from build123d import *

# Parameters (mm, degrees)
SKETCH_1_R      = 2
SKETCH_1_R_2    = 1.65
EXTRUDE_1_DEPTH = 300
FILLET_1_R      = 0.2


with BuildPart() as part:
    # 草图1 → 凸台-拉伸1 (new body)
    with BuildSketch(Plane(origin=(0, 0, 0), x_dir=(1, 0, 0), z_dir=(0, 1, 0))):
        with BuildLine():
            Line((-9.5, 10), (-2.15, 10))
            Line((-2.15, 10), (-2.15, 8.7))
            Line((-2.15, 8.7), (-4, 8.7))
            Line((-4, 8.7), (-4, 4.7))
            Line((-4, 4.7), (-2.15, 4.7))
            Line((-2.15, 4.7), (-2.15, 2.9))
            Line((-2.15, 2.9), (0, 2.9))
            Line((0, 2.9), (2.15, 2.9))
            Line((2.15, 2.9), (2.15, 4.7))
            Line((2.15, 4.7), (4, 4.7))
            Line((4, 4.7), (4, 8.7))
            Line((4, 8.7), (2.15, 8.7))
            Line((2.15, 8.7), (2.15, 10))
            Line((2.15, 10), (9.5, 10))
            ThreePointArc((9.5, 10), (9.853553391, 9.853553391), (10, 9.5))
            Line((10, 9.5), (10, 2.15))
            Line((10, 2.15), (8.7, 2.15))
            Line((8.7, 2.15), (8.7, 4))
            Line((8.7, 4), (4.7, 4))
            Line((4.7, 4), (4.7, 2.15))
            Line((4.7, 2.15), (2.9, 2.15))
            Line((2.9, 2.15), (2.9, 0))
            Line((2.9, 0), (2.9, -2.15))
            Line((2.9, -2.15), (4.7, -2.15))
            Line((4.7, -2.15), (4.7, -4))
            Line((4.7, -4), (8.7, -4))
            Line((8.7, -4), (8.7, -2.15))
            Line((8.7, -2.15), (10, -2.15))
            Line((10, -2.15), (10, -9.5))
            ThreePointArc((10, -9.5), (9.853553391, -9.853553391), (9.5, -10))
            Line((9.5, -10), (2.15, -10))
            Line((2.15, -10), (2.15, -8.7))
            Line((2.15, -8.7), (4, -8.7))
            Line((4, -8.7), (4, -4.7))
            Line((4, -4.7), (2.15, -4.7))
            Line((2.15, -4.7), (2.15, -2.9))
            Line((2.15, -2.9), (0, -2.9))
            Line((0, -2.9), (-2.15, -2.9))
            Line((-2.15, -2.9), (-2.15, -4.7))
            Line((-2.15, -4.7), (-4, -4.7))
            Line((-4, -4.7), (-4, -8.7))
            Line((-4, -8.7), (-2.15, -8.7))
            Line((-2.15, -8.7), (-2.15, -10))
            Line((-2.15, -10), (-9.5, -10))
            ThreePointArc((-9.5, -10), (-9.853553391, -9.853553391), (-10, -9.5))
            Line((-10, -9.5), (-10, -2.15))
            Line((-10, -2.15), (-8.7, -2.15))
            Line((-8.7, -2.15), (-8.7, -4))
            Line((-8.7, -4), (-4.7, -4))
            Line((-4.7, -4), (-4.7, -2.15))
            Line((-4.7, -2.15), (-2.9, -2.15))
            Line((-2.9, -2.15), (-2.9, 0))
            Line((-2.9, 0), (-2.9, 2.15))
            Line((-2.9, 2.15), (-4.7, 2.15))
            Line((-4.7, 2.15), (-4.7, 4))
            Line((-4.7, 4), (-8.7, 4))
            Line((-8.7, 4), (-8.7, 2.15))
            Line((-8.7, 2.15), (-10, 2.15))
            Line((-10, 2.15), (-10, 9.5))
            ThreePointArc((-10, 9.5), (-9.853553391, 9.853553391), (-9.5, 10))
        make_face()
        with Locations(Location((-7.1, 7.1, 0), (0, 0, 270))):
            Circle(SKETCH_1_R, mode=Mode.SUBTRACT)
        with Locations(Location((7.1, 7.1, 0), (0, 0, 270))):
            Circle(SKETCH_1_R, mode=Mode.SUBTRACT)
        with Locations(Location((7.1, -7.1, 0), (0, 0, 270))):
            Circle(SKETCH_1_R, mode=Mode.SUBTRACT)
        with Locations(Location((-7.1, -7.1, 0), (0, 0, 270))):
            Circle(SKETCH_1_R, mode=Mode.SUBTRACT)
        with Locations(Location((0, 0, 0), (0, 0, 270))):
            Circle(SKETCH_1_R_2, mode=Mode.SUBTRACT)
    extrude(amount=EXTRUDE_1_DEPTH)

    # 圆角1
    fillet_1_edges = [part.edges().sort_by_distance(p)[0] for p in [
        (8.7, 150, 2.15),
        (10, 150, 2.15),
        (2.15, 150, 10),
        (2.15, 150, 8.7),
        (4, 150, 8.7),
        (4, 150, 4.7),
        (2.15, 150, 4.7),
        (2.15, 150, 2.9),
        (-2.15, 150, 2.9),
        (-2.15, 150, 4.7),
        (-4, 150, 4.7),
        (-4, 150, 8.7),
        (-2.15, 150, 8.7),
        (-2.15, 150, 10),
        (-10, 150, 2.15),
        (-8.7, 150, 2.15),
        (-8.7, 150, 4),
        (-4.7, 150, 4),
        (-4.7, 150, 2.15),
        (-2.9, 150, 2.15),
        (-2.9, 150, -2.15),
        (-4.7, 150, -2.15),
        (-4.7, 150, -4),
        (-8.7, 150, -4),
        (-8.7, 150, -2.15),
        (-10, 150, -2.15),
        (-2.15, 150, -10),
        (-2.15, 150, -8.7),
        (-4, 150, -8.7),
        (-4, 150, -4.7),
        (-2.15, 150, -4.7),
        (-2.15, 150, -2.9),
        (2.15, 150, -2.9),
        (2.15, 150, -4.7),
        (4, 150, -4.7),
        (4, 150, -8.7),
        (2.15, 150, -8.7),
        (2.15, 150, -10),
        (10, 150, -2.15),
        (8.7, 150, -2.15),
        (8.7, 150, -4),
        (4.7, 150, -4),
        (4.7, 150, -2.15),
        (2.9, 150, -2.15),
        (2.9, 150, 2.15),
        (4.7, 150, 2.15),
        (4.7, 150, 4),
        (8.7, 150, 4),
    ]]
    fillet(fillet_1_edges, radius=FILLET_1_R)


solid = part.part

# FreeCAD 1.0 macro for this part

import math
import FreeCAD as App
import Part
import Sketcher
from FreeCAD import Vector


def edges_at(feature, points):
    """Names of the edges that pass closest to the given points."""
    edges = feature.Shape.Edges
    near = lambda p: min(range(len(edges)), key=lambda i: edges[i].distToShape(Part.Vertex(*p))[0])
    return sorted({f"Edge{near(p) + 1}" for p in points})

doc = App.newDocument("Part")
params = doc.addObject("Spreadsheet::Sheet", "Params")
for row, (alias, value) in enumerate([
    ("sketch1_diameter", "4 mm"),
    ("sketch1_diameter2", "3.3 mm"),
    ("sketch1_radius", "0.5 mm"),
    ("sketch1_width", "4 mm"),
    ("sketch1_width2", "1.3 mm"),
    ("pad1_length", "300 mm"),
    ("fillet_radius", "0.2 mm"),
], start=1):
    params.set(f"A{row}", alias)
    params.set(f"B{row}", "=" + value)
    params.setAlias(f"B{row}", alias)

body = doc.addObject("PartDesign::Body", "Body")

# Sketch on XZ plane
sketch1 = doc.addObject("Sketcher::SketchObject", "Sketch")
body.addObject(sketch1)
sketch1.AttachmentSupport = (doc.XZ_Plane, [""])
sketch1.MapMode = "FlatFace"
sketch1.addGeometry([
    Part.LineSegment(Vector(-2.15, -10, 0), Vector(-9.5, -10, 0)),  # 0
    Part.ArcOfCircle(Part.Circle(Vector(-9.5, -9.5, 0), Vector(0, 0, 1), 0.5), math.radians(180), math.radians(270)),  # 1
    Part.LineSegment(Vector(-10, -9.5, 0), Vector(-10, -2.15, 0)),  # 2
    Part.LineSegment(Vector(-10, -2.15, 0), Vector(-8.7, -2.15, 0)),  # 3
    Part.LineSegment(Vector(-8.7, -2.15, 0), Vector(-8.7, -4, 0)),  # 4
    Part.LineSegment(Vector(-8.7, -4, 0), Vector(-4.7, -4, 0)),  # 5
    Part.LineSegment(Vector(-4.7, -4, 0), Vector(-4.7, -2.15, 0)),  # 6
    Part.LineSegment(Vector(-4.7, -2.15, 0), Vector(-2.9, -2.15, 0)),  # 7
    Part.LineSegment(Vector(-2.9, -2.15, 0), Vector(-2.9, 2.15, 0)),  # 8
    Part.LineSegment(Vector(-2.9, 2.15, 0), Vector(-4.7, 2.15, 0)),  # 9
    Part.LineSegment(Vector(-4.7, 2.15, 0), Vector(-4.7, 4, 0)),  # 10
    Part.LineSegment(Vector(-4.7, 4, 0), Vector(-8.7, 4, 0)),  # 11
    Part.LineSegment(Vector(-8.7, 4, 0), Vector(-8.7, 2.15, 0)),  # 12
    Part.LineSegment(Vector(-8.7, 2.15, 0), Vector(-10, 2.15, 0)),  # 13
    Part.LineSegment(Vector(-10, 2.15, 0), Vector(-10, 9.5, 0)),  # 14
    Part.ArcOfCircle(Part.Circle(Vector(-9.5, 9.5, 0), Vector(0, 0, 1), 0.5), math.radians(90), math.radians(180)),  # 15
    Part.LineSegment(Vector(-9.5, 10, 0), Vector(-2.15, 10, 0)),  # 16
    Part.LineSegment(Vector(-2.15, 10, 0), Vector(-2.15, 8.7, 0)),  # 17
    Part.LineSegment(Vector(-2.15, 8.7, 0), Vector(-4, 8.7, 0)),  # 18
    Part.LineSegment(Vector(-4, 8.7, 0), Vector(-4, 4.7, 0)),  # 19
    Part.LineSegment(Vector(-4, 4.7, 0), Vector(-2.15, 4.7, 0)),  # 20
    Part.LineSegment(Vector(-2.15, 4.7, 0), Vector(-2.15, 2.9, 0)),  # 21
    Part.LineSegment(Vector(-2.15, 2.9, 0), Vector(2.15, 2.9, 0)),  # 22
    Part.LineSegment(Vector(2.15, 2.9, 0), Vector(2.15, 4.7, 0)),  # 23
    Part.LineSegment(Vector(2.15, 4.7, 0), Vector(4, 4.7, 0)),  # 24
    Part.LineSegment(Vector(4, 4.7, 0), Vector(4, 8.7, 0)),  # 25
    Part.LineSegment(Vector(4, 8.7, 0), Vector(2.15, 8.7, 0)),  # 26
    Part.LineSegment(Vector(2.15, 8.7, 0), Vector(2.15, 10, 0)),  # 27
    Part.LineSegment(Vector(2.15, 10, 0), Vector(9.5, 10, 0)),  # 28
    Part.ArcOfCircle(Part.Circle(Vector(9.5, 9.5, 0), Vector(0, 0, 1), 0.5), math.radians(0), math.radians(90)),  # 29
    Part.LineSegment(Vector(10, 9.5, 0), Vector(10, 2.15, 0)),  # 30
    Part.LineSegment(Vector(10, 2.15, 0), Vector(8.7, 2.15, 0)),  # 31
    Part.LineSegment(Vector(8.7, 2.15, 0), Vector(8.7, 4, 0)),  # 32
    Part.LineSegment(Vector(8.7, 4, 0), Vector(4.7, 4, 0)),  # 33
    Part.LineSegment(Vector(4.7, 4, 0), Vector(4.7, 2.15, 0)),  # 34
    Part.LineSegment(Vector(4.7, 2.15, 0), Vector(2.9, 2.15, 0)),  # 35
    Part.LineSegment(Vector(2.9, 2.15, 0), Vector(2.9, -2.15, 0)),  # 36
    Part.LineSegment(Vector(2.9, -2.15, 0), Vector(4.7, -2.15, 0)),  # 37
    Part.LineSegment(Vector(4.7, -2.15, 0), Vector(4.7, -4, 0)),  # 38
    Part.LineSegment(Vector(4.7, -4, 0), Vector(8.7, -4, 0)),  # 39
    Part.LineSegment(Vector(8.7, -4, 0), Vector(8.7, -2.15, 0)),  # 40
    Part.LineSegment(Vector(8.7, -2.15, 0), Vector(10, -2.15, 0)),  # 41
    Part.LineSegment(Vector(10, -2.15, 0), Vector(10, -9.5, 0)),  # 42
    Part.ArcOfCircle(Part.Circle(Vector(9.5, -9.5, 0), Vector(0, 0, 1), 0.5), math.radians(-90), math.radians(0)),  # 43
    Part.LineSegment(Vector(9.5, -10, 0), Vector(2.15, -10, 0)),  # 44
    Part.LineSegment(Vector(2.15, -10, 0), Vector(2.15, -8.7, 0)),  # 45
    Part.LineSegment(Vector(2.15, -8.7, 0), Vector(4, -8.7, 0)),  # 46
    Part.LineSegment(Vector(4, -8.7, 0), Vector(4, -4.7, 0)),  # 47
    Part.LineSegment(Vector(4, -4.7, 0), Vector(2.15, -4.7, 0)),  # 48
    Part.LineSegment(Vector(2.15, -4.7, 0), Vector(2.15, -2.9, 0)),  # 49
    Part.LineSegment(Vector(2.15, -2.9, 0), Vector(-2.15, -2.9, 0)),  # 50
    Part.LineSegment(Vector(-2.15, -2.9, 0), Vector(-2.15, -4.7, 0)),  # 51
    Part.LineSegment(Vector(-2.15, -4.7, 0), Vector(-4, -4.7, 0)),  # 52
    Part.LineSegment(Vector(-4, -4.7, 0), Vector(-4, -8.7, 0)),  # 53
    Part.LineSegment(Vector(-4, -8.7, 0), Vector(-2.15, -8.7, 0)),  # 54
    Part.LineSegment(Vector(-2.15, -8.7, 0), Vector(-2.15, -10, 0)),  # 55
    Part.Circle(Vector(7.1, 7.1, 0), Vector(0, 0, 1), 2),  # 56
    Part.Circle(Vector(0, 0, 0), Vector(0, 0, 1), 1.65),  # 57
    Part.Circle(Vector(-7.1, 7.1, 0), Vector(0, 0, 1), 2),  # 58
    Part.Circle(Vector(7.1, -7.1, 0), Vector(0, 0, 1), 2),  # 59
    Part.Circle(Vector(-7.1, -7.1, 0), Vector(0, 0, 1), 2),  # 60
], False)
sketch1.addConstraint([
    Sketcher.Constraint("Tangent", 0, 2, 1, 2),
    Sketcher.Constraint("Tangent", 1, 1, 2, 1),
    Sketcher.Constraint("Coincident", 2, 2, 3, 1),
    Sketcher.Constraint("Coincident", 3, 2, 4, 1),
    Sketcher.Constraint("Coincident", 4, 2, 5, 1),
    Sketcher.Constraint("Coincident", 5, 2, 6, 1),
    Sketcher.Constraint("Coincident", 6, 2, 7, 1),
    Sketcher.Constraint("Coincident", 7, 2, 8, 1),
    Sketcher.Constraint("Coincident", 8, 2, 9, 1),
    Sketcher.Constraint("Coincident", 9, 2, 10, 1),
    Sketcher.Constraint("Coincident", 10, 2, 11, 1),
    Sketcher.Constraint("Coincident", 11, 2, 12, 1),
    Sketcher.Constraint("Coincident", 12, 2, 13, 1),
    Sketcher.Constraint("Coincident", 13, 2, 14, 1),
    Sketcher.Constraint("Tangent", 14, 2, 15, 2),
    Sketcher.Constraint("Tangent", 15, 1, 16, 1),
    Sketcher.Constraint("Coincident", 16, 2, 17, 1),
    Sketcher.Constraint("Coincident", 17, 2, 18, 1),
    Sketcher.Constraint("Coincident", 18, 2, 19, 1),
    Sketcher.Constraint("Coincident", 19, 2, 20, 1),
    Sketcher.Constraint("Coincident", 20, 2, 21, 1),
    Sketcher.Constraint("Coincident", 21, 2, 22, 1),
    Sketcher.Constraint("Coincident", 22, 2, 23, 1),
    Sketcher.Constraint("Coincident", 23, 2, 24, 1),
    Sketcher.Constraint("Coincident", 24, 2, 25, 1),
    Sketcher.Constraint("Coincident", 25, 2, 26, 1),
    Sketcher.Constraint("Coincident", 26, 2, 27, 1),
    Sketcher.Constraint("Coincident", 27, 2, 28, 1),
    Sketcher.Constraint("Tangent", 28, 2, 29, 2),
    Sketcher.Constraint("Tangent", 29, 1, 30, 1),
    Sketcher.Constraint("Coincident", 30, 2, 31, 1),
    Sketcher.Constraint("Coincident", 31, 2, 32, 1),
    Sketcher.Constraint("Coincident", 32, 2, 33, 1),
    Sketcher.Constraint("Coincident", 33, 2, 34, 1),
    Sketcher.Constraint("Coincident", 34, 2, 35, 1),
    Sketcher.Constraint("Coincident", 35, 2, 36, 1),
    Sketcher.Constraint("Coincident", 36, 2, 37, 1),
    Sketcher.Constraint("Coincident", 37, 2, 38, 1),
    Sketcher.Constraint("Coincident", 38, 2, 39, 1),
    Sketcher.Constraint("Coincident", 39, 2, 40, 1),
    Sketcher.Constraint("Coincident", 40, 2, 41, 1),
    Sketcher.Constraint("Coincident", 41, 2, 42, 1),
    Sketcher.Constraint("Tangent", 42, 2, 43, 2),
    Sketcher.Constraint("Tangent", 43, 1, 44, 1),
    Sketcher.Constraint("Coincident", 44, 2, 45, 1),
    Sketcher.Constraint("Coincident", 45, 2, 46, 1),
    Sketcher.Constraint("Coincident", 46, 2, 47, 1),
    Sketcher.Constraint("Coincident", 47, 2, 48, 1),
    Sketcher.Constraint("Coincident", 48, 2, 49, 1),
    Sketcher.Constraint("Coincident", 49, 2, 50, 1),
    Sketcher.Constraint("Coincident", 50, 2, 51, 1),
    Sketcher.Constraint("Coincident", 51, 2, 52, 1),
    Sketcher.Constraint("Coincident", 52, 2, 53, 1),
    Sketcher.Constraint("Coincident", 53, 2, 54, 1),
    Sketcher.Constraint("Coincident", 54, 2, 55, 1),
    Sketcher.Constraint("Coincident", 55, 2, 0, 1),
    Sketcher.Constraint("Horizontal", 0),
    Sketcher.Constraint("Vertical", 2),
    Sketcher.Constraint("Horizontal", 3),
    Sketcher.Constraint("Vertical", 4),
    Sketcher.Constraint("Horizontal", 5),
    Sketcher.Constraint("Vertical", 6),
    Sketcher.Constraint("Horizontal", 7),
    Sketcher.Constraint("Vertical", 8),
    Sketcher.Constraint("Horizontal", 9),
    Sketcher.Constraint("Vertical", 10),
    Sketcher.Constraint("Horizontal", 11),
    Sketcher.Constraint("Vertical", 12),
    Sketcher.Constraint("Horizontal", 13),
    Sketcher.Constraint("Vertical", 14),
    Sketcher.Constraint("Horizontal", 16),
    Sketcher.Constraint("Vertical", 17),
    Sketcher.Constraint("Horizontal", 18),
    Sketcher.Constraint("Vertical", 19),
    Sketcher.Constraint("Horizontal", 20),
    Sketcher.Constraint("Vertical", 21),
    Sketcher.Constraint("Horizontal", 22),
    Sketcher.Constraint("Vertical", 23),
    Sketcher.Constraint("Horizontal", 24),
    Sketcher.Constraint("Vertical", 25),
    Sketcher.Constraint("Horizontal", 26),
    Sketcher.Constraint("Vertical", 27),
    Sketcher.Constraint("Horizontal", 28),
    Sketcher.Constraint("Vertical", 30),
    Sketcher.Constraint("Horizontal", 31),
    Sketcher.Constraint("Vertical", 32),
    Sketcher.Constraint("Horizontal", 33),
    Sketcher.Constraint("Vertical", 34),
    Sketcher.Constraint("Horizontal", 35),
    Sketcher.Constraint("Vertical", 36),
    Sketcher.Constraint("Horizontal", 37),
    Sketcher.Constraint("Vertical", 38),
    Sketcher.Constraint("Horizontal", 39),
    Sketcher.Constraint("Vertical", 40),
    Sketcher.Constraint("Horizontal", 41),
    Sketcher.Constraint("Vertical", 42),
    Sketcher.Constraint("Horizontal", 44),
    Sketcher.Constraint("Vertical", 45),
    Sketcher.Constraint("Horizontal", 46),
    Sketcher.Constraint("Vertical", 47),
    Sketcher.Constraint("Horizontal", 48),
    Sketcher.Constraint("Vertical", 49),
    Sketcher.Constraint("Horizontal", 50),
    Sketcher.Constraint("Vertical", 51),
    Sketcher.Constraint("Horizontal", 52),
    Sketcher.Constraint("Vertical", 53),
    Sketcher.Constraint("Horizontal", 54),
    Sketcher.Constraint("Vertical", 55),
    Sketcher.Constraint("Coincident", 57, 3, -1, 1),
    Sketcher.Constraint("Equal", 1, 15),
    Sketcher.Constraint("Equal", 15, 29),
    Sketcher.Constraint("Equal", 29, 43),
    Sketcher.Constraint("Equal", 56, 58),
    Sketcher.Constraint("Equal", 58, 59),
    Sketcher.Constraint("Equal", 59, 60),
    Sketcher.Constraint("Symmetric", 1, 3, 29, 3, -1, 1),
    Sketcher.Constraint("Symmetric", 15, 3, 43, 3, -1, 1),
    Sketcher.Constraint("Symmetric", 58, 3, 59, 3, -1, 1),
    Sketcher.Constraint("Symmetric", 56, 3, 60, 3, -1, 1),
    Sketcher.Constraint("Symmetric", 3, 2, 31, 2, -1, 1),
    Sketcher.Constraint("Symmetric", 5, 2, 33, 2, -1, 1),
    Sketcher.Constraint("Symmetric", 7, 2, 35, 2, -1, 1),
    Sketcher.Constraint("Symmetric", 9, 2, 37, 2, -1, 1),
    Sketcher.Constraint("Symmetric", 11, 2, 39, 2, -1, 1),
    Sketcher.Constraint("Symmetric", 17, 2, 45, 2, -1, 1),
    Sketcher.Constraint("Symmetric", 19, 2, 47, 2, -1, 1),
    Sketcher.Constraint("Symmetric", 21, 2, 49, 2, -1, 1),
    Sketcher.Constraint("Symmetric", 23, 2, 51, 2, -1, 1),
    Sketcher.Constraint("Symmetric", 25, 2, 53, 2, -1, 1),
    Sketcher.Constraint("Symmetric", 15, 3, 29, 3, -2),
    Sketcher.Constraint("Symmetric", 56, 3, 58, 3, -2),
    Sketcher.Constraint("Symmetric", 20, 2, 23, 2, -2),
    Sketcher.Constraint("Symmetric", 18, 2, 25, 2, -2),
    Sketcher.Constraint("Symmetric", 12, 2, 31, 2, -2),
    Sketcher.Constraint("Symmetric", 10, 2, 33, 2, -2),
    Sketcher.Constraint("Horizontal", 3, 2, 6, 2),
    Sketcher.Constraint("Horizontal", 9, 2, 12, 2),
    Sketcher.Constraint("Horizontal", 37, 2, 40, 2),
    Sketcher.Constraint("Vertical", 17, 2, 20, 2),
    Sketcher.Constraint("Vertical", 23, 2, 26, 2),
    Sketcher.Constraint("Vertical", 51, 2, 54, 2),
    Sketcher.Constraint("Equal", 44, 2),
    Sketcher.Constraint("Equal", 54, 4),
    Sketcher.Constraint("Equal", 50, 8),
    Sketcher.Constraint("Equal", 41, 17),
    Sketcher.Constraint("Equal", 39, 19),
    Sketcher.Constraint("Equal", 37, 21),
    Sketcher.Constraint("Diameter", 56, 4.0),
    Sketcher.Constraint("Diameter", 57, 3.3),
    Sketcher.Constraint("Radius", 1, 0.5),
    Sketcher.Constraint("DistanceX", 5, 1, 5, 2, 4.0),
    Sketcher.Constraint("DistanceX", 3, 1, 3, 2, 1.3),
    Sketcher.Constraint("DistanceX", 7, 1, 7, 2, 1.8),
    Sketcher.Constraint("DistanceX", 22, 1, 22, 2, 4.3),
    Sketcher.Constraint("DistanceY", 0, 2, -1, 1, 10.0),
    Sketcher.Constraint("DistanceY", 4, 2, -1, 1, 4.0),
    Sketcher.Constraint("DistanceX", -1, 1, 56, 3, 7.1),
    Sketcher.Constraint("DistanceY", -1, 1, 56, 3, 7.1),
])
sketch1.setExpression("Constraints[147]", "Params.sketch1_diameter")
sketch1.setExpression("Constraints[148]", "Params.sketch1_diameter2")
sketch1.setExpression("Constraints[149]", "Params.sketch1_radius")
sketch1.setExpression("Constraints[150]", "Params.sketch1_width")
sketch1.setExpression("Constraints[151]", "Params.sketch1_width2")
pad1 = doc.addObject("PartDesign::Pad", "Pad")
body.addObject(pad1)
pad1.Profile = sketch1
pad1.setExpression("Length", "Params.pad1_length")
pad1.Reversed = True
doc.recompute()

fillet = doc.addObject("PartDesign::Fillet", "Fillet")
body.addObject(fillet)
fillet.Base = (pad1, edges_at(pad1, [
    (8.7, 150, 2.15),
    (10, 150, 2.15),
    (2.15, 150, 10),
    (2.15, 150, 8.7),
    (4, 150, 8.7),
    (4, 150, 4.7),
    (2.15, 150, 4.7),
    (2.15, 150, 2.9),
    (-2.15, 150, 2.9),
    (-2.15, 150, 4.7),
    (-4, 150, 4.7),
    (-4, 150, 8.7),
    (-2.15, 150, 8.7),
    (-2.15, 150, 10),
    (-10, 150, 2.15),
    (-8.7, 150, 2.15),
    (-8.7, 150, 4),
    (-4.7, 150, 4),
    (-4.7, 150, 2.15),
    (-2.9, 150, 2.15),
    (-2.9, 150, -2.15),
    (-4.7, 150, -2.15),
    (-4.7, 150, -4),
    (-8.7, 150, -4),
    (-8.7, 150, -2.15),
    (-10, 150, -2.15),
    (-2.15, 150, -10),
    (-2.15, 150, -8.7),
    (-4, 150, -8.7),
    (-4, 150, -4.7),
    (-2.15, 150, -4.7),
    (-2.15, 150, -2.9),
    (2.15, 150, -2.9),
    (2.15, 150, -4.7),
    (4, 150, -4.7),
    (4, 150, -8.7),
    (2.15, 150, -8.7),
    (2.15, 150, -10),
    (10, 150, -2.15),
    (8.7, 150, -2.15),
    (8.7, 150, -4),
    (4.7, 150, -4),
    (4.7, 150, -2.15),
    (2.9, 150, -2.15),
    (2.9, 150, 2.15),
    (4.7, 150, 2.15),
    (4.7, 150, 4),
    (8.7, 150, 4),
]))
fillet.setExpression("Radius", "Params.fillet_radius")

doc.recompute()
